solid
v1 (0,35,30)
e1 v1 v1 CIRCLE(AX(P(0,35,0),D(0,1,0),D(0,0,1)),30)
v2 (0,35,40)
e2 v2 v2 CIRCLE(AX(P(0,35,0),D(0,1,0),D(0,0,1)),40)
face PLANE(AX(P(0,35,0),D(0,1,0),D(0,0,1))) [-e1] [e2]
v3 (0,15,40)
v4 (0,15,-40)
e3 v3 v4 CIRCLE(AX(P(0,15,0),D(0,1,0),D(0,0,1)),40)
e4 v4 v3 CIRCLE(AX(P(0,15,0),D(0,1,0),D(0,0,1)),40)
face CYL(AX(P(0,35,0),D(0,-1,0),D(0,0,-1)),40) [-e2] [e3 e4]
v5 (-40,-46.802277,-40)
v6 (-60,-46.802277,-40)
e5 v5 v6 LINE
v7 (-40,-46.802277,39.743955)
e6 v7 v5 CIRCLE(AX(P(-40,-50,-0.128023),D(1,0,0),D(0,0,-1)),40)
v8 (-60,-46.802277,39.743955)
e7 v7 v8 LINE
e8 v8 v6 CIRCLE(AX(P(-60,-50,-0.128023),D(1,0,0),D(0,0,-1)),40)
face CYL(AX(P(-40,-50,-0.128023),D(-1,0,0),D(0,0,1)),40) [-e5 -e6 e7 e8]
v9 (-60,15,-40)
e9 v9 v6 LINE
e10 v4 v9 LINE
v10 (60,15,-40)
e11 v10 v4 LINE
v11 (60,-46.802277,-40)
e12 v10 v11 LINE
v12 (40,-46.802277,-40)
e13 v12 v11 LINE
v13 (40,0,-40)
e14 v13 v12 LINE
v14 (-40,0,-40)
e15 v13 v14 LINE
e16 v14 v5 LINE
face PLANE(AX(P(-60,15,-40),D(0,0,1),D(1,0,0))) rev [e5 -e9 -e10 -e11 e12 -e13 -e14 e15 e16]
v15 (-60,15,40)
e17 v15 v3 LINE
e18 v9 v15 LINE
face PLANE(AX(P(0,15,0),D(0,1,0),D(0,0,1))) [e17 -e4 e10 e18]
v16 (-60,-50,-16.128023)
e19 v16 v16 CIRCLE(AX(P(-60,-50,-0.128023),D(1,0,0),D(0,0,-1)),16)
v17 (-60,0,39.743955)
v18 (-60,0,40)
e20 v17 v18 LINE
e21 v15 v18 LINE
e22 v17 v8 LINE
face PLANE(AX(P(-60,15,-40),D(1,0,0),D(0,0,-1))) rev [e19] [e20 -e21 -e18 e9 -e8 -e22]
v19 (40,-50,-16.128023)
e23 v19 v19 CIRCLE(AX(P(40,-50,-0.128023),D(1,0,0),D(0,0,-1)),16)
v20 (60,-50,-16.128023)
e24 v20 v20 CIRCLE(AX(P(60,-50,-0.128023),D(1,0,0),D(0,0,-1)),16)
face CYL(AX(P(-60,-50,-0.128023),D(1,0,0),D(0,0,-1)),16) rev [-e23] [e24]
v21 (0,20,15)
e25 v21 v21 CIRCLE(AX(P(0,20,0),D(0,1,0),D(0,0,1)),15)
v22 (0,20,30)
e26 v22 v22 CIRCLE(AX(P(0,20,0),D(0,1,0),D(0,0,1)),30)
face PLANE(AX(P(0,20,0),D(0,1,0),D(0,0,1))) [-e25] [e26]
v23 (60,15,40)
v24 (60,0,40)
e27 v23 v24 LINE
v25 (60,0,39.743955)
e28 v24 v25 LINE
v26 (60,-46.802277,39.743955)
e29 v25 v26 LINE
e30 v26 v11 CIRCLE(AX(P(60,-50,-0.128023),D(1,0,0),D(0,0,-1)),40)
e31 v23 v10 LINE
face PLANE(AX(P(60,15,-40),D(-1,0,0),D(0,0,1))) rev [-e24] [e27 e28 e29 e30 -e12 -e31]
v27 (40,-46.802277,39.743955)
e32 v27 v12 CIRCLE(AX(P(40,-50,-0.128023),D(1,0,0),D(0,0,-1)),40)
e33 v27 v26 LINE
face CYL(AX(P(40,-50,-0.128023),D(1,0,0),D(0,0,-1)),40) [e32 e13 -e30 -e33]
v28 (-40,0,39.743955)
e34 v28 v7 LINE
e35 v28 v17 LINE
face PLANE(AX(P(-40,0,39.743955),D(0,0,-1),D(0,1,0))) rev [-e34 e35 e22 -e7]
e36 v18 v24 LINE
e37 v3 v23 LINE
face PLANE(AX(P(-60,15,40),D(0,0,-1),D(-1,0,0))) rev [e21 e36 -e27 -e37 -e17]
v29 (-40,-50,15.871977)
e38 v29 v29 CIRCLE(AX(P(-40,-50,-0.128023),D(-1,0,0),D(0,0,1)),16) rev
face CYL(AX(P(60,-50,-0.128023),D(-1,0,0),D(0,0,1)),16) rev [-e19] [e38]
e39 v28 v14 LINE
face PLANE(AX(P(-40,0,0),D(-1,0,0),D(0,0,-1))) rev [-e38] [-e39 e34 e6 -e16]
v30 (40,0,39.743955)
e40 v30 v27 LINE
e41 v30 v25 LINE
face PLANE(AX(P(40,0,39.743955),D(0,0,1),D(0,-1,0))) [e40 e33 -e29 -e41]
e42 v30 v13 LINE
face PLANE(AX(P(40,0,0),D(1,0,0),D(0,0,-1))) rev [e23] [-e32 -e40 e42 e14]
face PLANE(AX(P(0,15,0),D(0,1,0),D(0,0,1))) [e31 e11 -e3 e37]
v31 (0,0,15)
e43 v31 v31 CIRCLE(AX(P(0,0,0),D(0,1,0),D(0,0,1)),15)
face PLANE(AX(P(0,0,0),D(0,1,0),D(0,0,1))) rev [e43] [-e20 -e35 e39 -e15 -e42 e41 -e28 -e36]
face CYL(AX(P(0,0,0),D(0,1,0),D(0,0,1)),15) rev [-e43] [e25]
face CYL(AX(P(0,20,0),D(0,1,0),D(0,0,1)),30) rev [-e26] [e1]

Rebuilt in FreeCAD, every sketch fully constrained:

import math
import FreeCAD as App
import Part
import Sketcher
Q = App.Units.Quantity


def add_polygon(sketch, points):
    """Adds a closed chain of lines whose ends are joined by coincident constraints."""
    first, n = sketch.GeometryCount, len(points)
    for a, b in zip(points, points[1:] + points[:1]):
        sketch.addGeometry(Part.LineSegment(App.Vector(*a, 0), App.Vector(*b, 0)), False)
    for i in range(n):
        sketch.addConstraint(Sketcher.Constraint("Coincident", first + i, 2, first + (i + 1) % n, 1))

doc = App.newDocument("Part")
body = doc.addObject("PartDesign::Body", "Body")

# Sketch on XZ plane
sketch1 = body.newObject("Sketcher::SketchObject", "Sketch")
sketch1.AttachmentSupport = (doc.getObject("XZ_Plane"), [""])
sketch1.MapMode = "FlatFace"
add_polygon(sketch1, [(-60, -40), (-60, 40), (60, 40), (60, -40)])  # lines 0-3
sketch1.addConstraint(Sketcher.Constraint("Vertical", 0))
sketch1.addConstraint(Sketcher.Constraint("Horizontal", 1))
sketch1.addConstraint(Sketcher.Constraint("Vertical", 2))
sketch1.addConstraint(Sketcher.Constraint("Horizontal", 3))
sketch1.addConstraint(Sketcher.Constraint("Symmetric", 0, 2, 2, 2, -1, 1))
sketch1.addConstraint(Sketcher.Constraint("DistanceX", 1, 1, 1, 2, Q("120 mm")))
sketch1.addConstraint(Sketcher.Constraint("DistanceY", 0, 1, 0, 2, Q("80 mm")))
pad1 = body.newObject("PartDesign::Pad", "Pad")
pad1.Profile = sketch1
pad1.Length = 15
pad1.Reversed = True

# Sketch on XZ plane
sketch2 = body.newObject("Sketcher::SketchObject", "Sketch001")
sketch2.AttachmentSupport = (doc.getObject("XZ_Plane"), [""])
sketch2.MapMode = "FlatFace"
sketch2.AttachmentOffset = App.Placement(App.Vector(0, 0, -15), App.Rotation())
sketch2.addGeometry(Part.Circle(App.Vector(0, 0, 0), App.Vector(0, 0, 1), 40), False)
sketch2.addConstraint(Sketcher.Constraint("Coincident", 0, 3, -1, 1))
sketch2.addConstraint(Sketcher.Constraint("Diameter", 0, Q("80 mm")))
pad2 = body.newObject("PartDesign::Pad", "Pad001")
pad2.Profile = sketch2
pad2.Length = 20
pad2.Reversed = True

# Sketch on XZ plane
sketch3 = body.newObject("Sketcher::SketchObject", "Sketch002")
sketch3.AttachmentSupport = (doc.getObject("XZ_Plane"), [""])
sketch3.MapMode = "FlatFace"
sketch3.AttachmentOffset = App.Placement(App.Vector(0, 0, -35), App.Rotation())
sketch3.addGeometry(Part.Circle(App.Vector(0, 0, 0), App.Vector(0, 0, 1), 30), False)
sketch3.addConstraint(Sketcher.Constraint("Coincident", 0, 3, -1, 1))
sketch3.addConstraint(Sketcher.Constraint("Diameter", 0, Q("60 mm")))
pocket1 = body.newObject("PartDesign::Pocket", "Pocket")
pocket1.Profile = sketch3
pocket1.Length = 15
pocket1.Reversed = True

# Sketch on XZ plane
sketch4 = body.newObject("Sketcher::SketchObject", "Sketch003")
sketch4.AttachmentSupport = (doc.getObject("XZ_Plane"), [""])
sketch4.MapMode = "FlatFace"
sketch4.AttachmentOffset = App.Placement(App.Vector(0, 0, -20), App.Rotation())
sketch4.addGeometry(Part.Circle(App.Vector(0, 0, 0), App.Vector(0, 0, 1), 15), False)
sketch4.addConstraint(Sketcher.Constraint("Coincident", 0, 3, -1, 1))
sketch4.addConstraint(Sketcher.Constraint("Diameter", 0, Q("30 mm")))
pocket2 = body.newObject("PartDesign::Pocket", "Pocket001")
pocket2.Profile = sketch4
pocket2.Type = "ThroughAll"
pocket2.Reversed = True

# Sketch on YZ plane
sketch5 = body.newObject("Sketcher::SketchObject", "Sketch004")
sketch5.AttachmentSupport = (doc.getObject("YZ_Plane"), [""])
sketch5.MapMode = "FlatFace"
sketch5.AttachmentOffset = App.Placement(App.Vector(0, 0, 60), App.Rotation())
sketch5.addGeometry(Part.LineSegment(App.Vector(0, -40, 0), App.Vector(0, 39.7, 0)), False)
sketch5.addGeometry(Part.LineSegment(App.Vector(0, 39.7, 0), App.Vector(-46.8, 39.7, 0)), False)
sketch5.addGeometry(Part.ArcOfCircle(Part.Circle(App.Vector(-50, -0.1, 0), App.Vector(0, 0, 1), 40), math.radians(85), math.radians(270)), False)
sketch5.addGeometry(Part.ArcOfCircle(Part.Circle(App.Vector(-50, -0.1, 0), App.Vector(0, 0, 1), 40), math.radians(-90), math.radians(-85.41)), False)
sketch5.addGeometry(Part.LineSegment(App.Vector(-46.8, -40, 0), App.Vector(0, -40, 0)), False)
sketch5.addConstraint(Sketcher.Constraint("Coincident", 0, 2, 1, 1))
sketch5.addConstraint(Sketcher.Constraint("Coincident", 1, 2, 2, 1))
sketch5.addConstraint(Sketcher.Constraint("Tangent", 2, 2, 3, 1))
sketch5.addConstraint(Sketcher.Constraint("Coincident", 3, 2, 4, 1))
sketch5.addConstraint(Sketcher.Constraint("Coincident", 4, 2, 0, 1))
sketch5.addConstraint(Sketcher.Constraint("Vertical", 0))
sketch5.addConstraint(Sketcher.Constraint("Horizontal", 1))
sketch5.addConstraint(Sketcher.Constraint("Horizontal", 4))
sketch5.addConstraint(Sketcher.Constraint("Equal", 2, 3))
sketch5.addConstraint(Sketcher.Constraint("PointOnObject", 0, 2, -2))
sketch5.addConstraint(Sketcher.Constraint("Vertical", 3, 3, 2, 2))
sketch5.addConstraint(Sketcher.Constraint("Vertical", 1, 2, 3, 2))
sketch5.addConstraint(Sketcher.Constraint("Radius", 2, Q("40 mm")))
sketch5.addConstraint(Sketcher.Constraint("DistanceX", 2, 3, -1, 1, Q("50 mm")))
sketch5.addConstraint(Sketcher.Constraint("DistanceY", 3, 2, -1, 1, Q("40 mm")))
sketch5.addConstraint(Sketcher.Constraint("DistanceX", 1, 2, 1, 1, Q("46.802277 mm")))
pad3 = body.newObject("PartDesign::Pad", "Pad002")
pad3.Profile = sketch5
pad3.Length = 20
pad3.Reversed = True

# Sketch on YZ plane
sketch6 = body.newObject("Sketcher::SketchObject", "Sketch005")
sketch6.AttachmentSupport = (doc.getObject("YZ_Plane"), [""])
sketch6.MapMode = "FlatFace"
sketch6.AttachmentOffset = App.Placement(App.Vector(0, 0, 60), App.Rotation())
sketch6.addGeometry(Part.Circle(App.Vector(-50, 0, 0), App.Vector(0, 0, 1), 16), False)
sketch6.addConstraint(Sketcher.Constraint("Diameter", 0, Q("32 mm")))
sketch6.addConstraint(Sketcher.Constraint("DistanceX", 0, 3, -1, 1, Q("50 mm")))
sketch6.addConstraint(Sketcher.Constraint("DistanceY", 0, 3, -1, 1, Q("0.128023 mm")))
pocket3 = body.newObject("PartDesign::Pocket", "Pocket002")
pocket3.Profile = sketch6
pocket3.Type = "ThroughAll"
doc.recompute()

mirrored = body.newObject("PartDesign::Mirrored", "Mirrored")
mirrored.Originals = [pad3, pocket3]
mirrored.MirrorPlane = (doc.getObject("YZ_Plane"), [""])
body.Tip = mirrored

doc.recompute()
